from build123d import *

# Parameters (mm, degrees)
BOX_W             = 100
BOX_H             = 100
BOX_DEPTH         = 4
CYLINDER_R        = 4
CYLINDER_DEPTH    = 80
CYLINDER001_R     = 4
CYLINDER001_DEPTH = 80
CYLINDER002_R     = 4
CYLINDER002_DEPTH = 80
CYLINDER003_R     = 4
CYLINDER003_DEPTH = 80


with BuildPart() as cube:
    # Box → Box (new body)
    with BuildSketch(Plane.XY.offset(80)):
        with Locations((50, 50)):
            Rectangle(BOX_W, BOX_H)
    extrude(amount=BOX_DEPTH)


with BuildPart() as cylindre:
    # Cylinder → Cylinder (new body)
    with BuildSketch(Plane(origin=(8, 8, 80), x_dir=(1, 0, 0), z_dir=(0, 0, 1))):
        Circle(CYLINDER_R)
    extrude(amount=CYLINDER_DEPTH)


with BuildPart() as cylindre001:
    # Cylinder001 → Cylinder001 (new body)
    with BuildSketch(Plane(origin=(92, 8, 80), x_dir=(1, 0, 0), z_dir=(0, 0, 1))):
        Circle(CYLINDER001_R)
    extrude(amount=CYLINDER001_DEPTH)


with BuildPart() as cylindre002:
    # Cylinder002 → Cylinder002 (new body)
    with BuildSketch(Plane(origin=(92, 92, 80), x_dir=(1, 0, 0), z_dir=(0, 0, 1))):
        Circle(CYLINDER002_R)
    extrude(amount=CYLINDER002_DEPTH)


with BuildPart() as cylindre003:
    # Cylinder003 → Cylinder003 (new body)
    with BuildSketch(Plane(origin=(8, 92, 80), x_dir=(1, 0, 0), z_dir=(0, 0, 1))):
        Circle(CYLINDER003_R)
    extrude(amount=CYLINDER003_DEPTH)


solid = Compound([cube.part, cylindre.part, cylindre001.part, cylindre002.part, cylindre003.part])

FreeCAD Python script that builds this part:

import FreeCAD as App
import Part
import Sketcher


def add_polygon(sketch, points):
    """Adds a closed chain of lines whose ends are joined by coincident constraints."""
    first, n = sketch.GeometryCount, len(points)
    for a, b in zip(points, points[1:] + points[:1]):
        sketch.addGeometry(Part.LineSegment(App.Vector(*a, 0), App.Vector(*b, 0)), False)
    for i in range(n):
        sketch.addConstraint(Sketcher.Constraint("Coincident", first + i, 2, first + (i + 1) % n, 1))

doc = App.newDocument("Part")
body = doc.addObject("PartDesign::Body", "Body")

# Sketch on XY plane
sketch1 = doc.addObject("Sketcher::SketchObject", "Sketch")
body.addObject(sketch1)
sketch1.AttachmentSupport = (doc.XY_Plane, [""])
sketch1.MapMode = "FlatFace"
sketch1.AttachmentOffset = App.Placement(App.Vector(0, 0, 80), App.Rotation())
add_polygon(sketch1, [(0, 100), (0, 0), (100, 0), (100, 100)])  # lines 0-3
sketch1.addConstraint(Sketcher.Constraint("Vertical", 0))
sketch1.addConstraint(Sketcher.Constraint("Horizontal", 1))
sketch1.addConstraint(Sketcher.Constraint("Vertical", 2))
sketch1.addConstraint(Sketcher.Constraint("Horizontal", 3))
sketch1.addConstraint(Sketcher.Constraint("Coincident", 0, 2, -1, 1))
sketch1.addConstraint(Sketcher.Constraint("Equal", 3, 0))
sketch1.addConstraint(Sketcher.Constraint("DistanceX", 1, 1, 1, 2, 100.0))
pad1 = doc.addObject("PartDesign::Pad", "Pad")
body.addObject(pad1)
pad1.Profile = sketch1
pad1.Length = 4
body2 = doc.addObject("PartDesign::Body", "Body001")

# Sketch on XY plane
sketch2 = doc.addObject("Sketcher::SketchObject", "Sketch001")
body2.addObject(sketch2)
sketch2.AttachmentSupport = (doc.getObject("XY_Plane001"), [""])
sketch2.MapMode = "FlatFace"
sketch2.AttachmentOffset = App.Placement(App.Vector(0, 0, 80), App.Rotation())
sketch2.addGeometry(Part.Circle(App.Vector(8, 8, 0), App.Vector(0, 0, 1), 4), False)
sketch2.addConstraint(Sketcher.Constraint("Diameter", 0, 8.0))
sketch2.addConstraint(Sketcher.Constraint("DistanceX", -1, 1, 0, 3, 8.0))
sketch2.addConstraint(Sketcher.Constraint("DistanceY", -1, 1, 0, 3, 8.0))
pad2 = doc.addObject("PartDesign::Pad", "Pad001")
body2.addObject(pad2)
pad2.Profile = sketch2
pad2.Length = 80
body3 = doc.addObject("PartDesign::Body", "Body002")

# Sketch on XY plane
sketch3 = doc.addObject("Sketcher::SketchObject", "Sketch002")
body3.addObject(sketch3)
sketch3.AttachmentSupport = (doc.getObject("XY_Plane002"), [""])
sketch3.MapMode = "FlatFace"
sketch3.AttachmentOffset = App.Placement(App.Vector(0, 0, 80), App.Rotation())
sketch3.addGeometry(Part.Circle(App.Vector(92, 8, 0), App.Vector(0, 0, 1), 4), False)
sketch3.addConstraint(Sketcher.Constraint("Diameter", 0, 8.0))
sketch3.addConstraint(Sketcher.Constraint("DistanceX", -1, 1, 0, 3, 92.0))
sketch3.addConstraint(Sketcher.Constraint("DistanceY", -1, 1, 0, 3, 8.0))
pad3 = doc.addObject("PartDesign::Pad", "Pad002")
body3.addObject(pad3)
pad3.Profile = sketch3
pad3.Length = 80
body4 = doc.addObject("PartDesign::Body", "Body003")

# Sketch on XY plane
sketch4 = doc.addObject("Sketcher::SketchObject", "Sketch003")
body4.addObject(sketch4)
sketch4.AttachmentSupport = (doc.getObject("XY_Plane003"), [""])
sketch4.MapMode = "FlatFace"
sketch4.AttachmentOffset = App.Placement(App.Vector(0, 0, 80), App.Rotation())
sketch4.addGeometry(Part.Circle(App.Vector(92, 92, 0), App.Vector(0, 0, 1), 4), False)
sketch4.addConstraint(Sketcher.Constraint("Diameter", 0, 8.0))
sketch4.addConstraint(Sketcher.Constraint("DistanceX", -1, 1, 0, 3, 92.0))
sketch4.addConstraint(Sketcher.Constraint("DistanceY", -1, 1, 0, 3, 92.0))
pad4 = doc.addObject("PartDesign::Pad", "Pad003")
body4.addObject(pad4)
pad4.Profile = sketch4
pad4.Length = 80
body5 = doc.addObject("PartDesign::Body", "Body004")

# Sketch on XY plane
sketch5 = doc.addObject("Sketcher::SketchObject", "Sketch004")
body5.addObject(sketch5)
sketch5.AttachmentSupport = (doc.getObject("XY_Plane004"), [""])
sketch5.MapMode = "FlatFace"
sketch5.AttachmentOffset = App.Placement(App.Vector(0, 0, 80), App.Rotation())
sketch5.addGeometry(Part.Circle(App.Vector(8, 92, 0), App.Vector(0, 0, 1), 4), False)
sketch5.addConstraint(Sketcher.Constraint("Diameter", 0, 8.0))
sketch5.addConstraint(Sketcher.Constraint("DistanceX", -1, 1, 0, 3, 8.0))
sketch5.addConstraint(Sketcher.Constraint("DistanceY", -1, 1, 0, 3, 92.0))
pad5 = doc.addObject("PartDesign::Pad", "Pad004")
body5.addObject(pad5)
pad5.Profile = sketch5
pad5.Length = 80

doc.recompute()
